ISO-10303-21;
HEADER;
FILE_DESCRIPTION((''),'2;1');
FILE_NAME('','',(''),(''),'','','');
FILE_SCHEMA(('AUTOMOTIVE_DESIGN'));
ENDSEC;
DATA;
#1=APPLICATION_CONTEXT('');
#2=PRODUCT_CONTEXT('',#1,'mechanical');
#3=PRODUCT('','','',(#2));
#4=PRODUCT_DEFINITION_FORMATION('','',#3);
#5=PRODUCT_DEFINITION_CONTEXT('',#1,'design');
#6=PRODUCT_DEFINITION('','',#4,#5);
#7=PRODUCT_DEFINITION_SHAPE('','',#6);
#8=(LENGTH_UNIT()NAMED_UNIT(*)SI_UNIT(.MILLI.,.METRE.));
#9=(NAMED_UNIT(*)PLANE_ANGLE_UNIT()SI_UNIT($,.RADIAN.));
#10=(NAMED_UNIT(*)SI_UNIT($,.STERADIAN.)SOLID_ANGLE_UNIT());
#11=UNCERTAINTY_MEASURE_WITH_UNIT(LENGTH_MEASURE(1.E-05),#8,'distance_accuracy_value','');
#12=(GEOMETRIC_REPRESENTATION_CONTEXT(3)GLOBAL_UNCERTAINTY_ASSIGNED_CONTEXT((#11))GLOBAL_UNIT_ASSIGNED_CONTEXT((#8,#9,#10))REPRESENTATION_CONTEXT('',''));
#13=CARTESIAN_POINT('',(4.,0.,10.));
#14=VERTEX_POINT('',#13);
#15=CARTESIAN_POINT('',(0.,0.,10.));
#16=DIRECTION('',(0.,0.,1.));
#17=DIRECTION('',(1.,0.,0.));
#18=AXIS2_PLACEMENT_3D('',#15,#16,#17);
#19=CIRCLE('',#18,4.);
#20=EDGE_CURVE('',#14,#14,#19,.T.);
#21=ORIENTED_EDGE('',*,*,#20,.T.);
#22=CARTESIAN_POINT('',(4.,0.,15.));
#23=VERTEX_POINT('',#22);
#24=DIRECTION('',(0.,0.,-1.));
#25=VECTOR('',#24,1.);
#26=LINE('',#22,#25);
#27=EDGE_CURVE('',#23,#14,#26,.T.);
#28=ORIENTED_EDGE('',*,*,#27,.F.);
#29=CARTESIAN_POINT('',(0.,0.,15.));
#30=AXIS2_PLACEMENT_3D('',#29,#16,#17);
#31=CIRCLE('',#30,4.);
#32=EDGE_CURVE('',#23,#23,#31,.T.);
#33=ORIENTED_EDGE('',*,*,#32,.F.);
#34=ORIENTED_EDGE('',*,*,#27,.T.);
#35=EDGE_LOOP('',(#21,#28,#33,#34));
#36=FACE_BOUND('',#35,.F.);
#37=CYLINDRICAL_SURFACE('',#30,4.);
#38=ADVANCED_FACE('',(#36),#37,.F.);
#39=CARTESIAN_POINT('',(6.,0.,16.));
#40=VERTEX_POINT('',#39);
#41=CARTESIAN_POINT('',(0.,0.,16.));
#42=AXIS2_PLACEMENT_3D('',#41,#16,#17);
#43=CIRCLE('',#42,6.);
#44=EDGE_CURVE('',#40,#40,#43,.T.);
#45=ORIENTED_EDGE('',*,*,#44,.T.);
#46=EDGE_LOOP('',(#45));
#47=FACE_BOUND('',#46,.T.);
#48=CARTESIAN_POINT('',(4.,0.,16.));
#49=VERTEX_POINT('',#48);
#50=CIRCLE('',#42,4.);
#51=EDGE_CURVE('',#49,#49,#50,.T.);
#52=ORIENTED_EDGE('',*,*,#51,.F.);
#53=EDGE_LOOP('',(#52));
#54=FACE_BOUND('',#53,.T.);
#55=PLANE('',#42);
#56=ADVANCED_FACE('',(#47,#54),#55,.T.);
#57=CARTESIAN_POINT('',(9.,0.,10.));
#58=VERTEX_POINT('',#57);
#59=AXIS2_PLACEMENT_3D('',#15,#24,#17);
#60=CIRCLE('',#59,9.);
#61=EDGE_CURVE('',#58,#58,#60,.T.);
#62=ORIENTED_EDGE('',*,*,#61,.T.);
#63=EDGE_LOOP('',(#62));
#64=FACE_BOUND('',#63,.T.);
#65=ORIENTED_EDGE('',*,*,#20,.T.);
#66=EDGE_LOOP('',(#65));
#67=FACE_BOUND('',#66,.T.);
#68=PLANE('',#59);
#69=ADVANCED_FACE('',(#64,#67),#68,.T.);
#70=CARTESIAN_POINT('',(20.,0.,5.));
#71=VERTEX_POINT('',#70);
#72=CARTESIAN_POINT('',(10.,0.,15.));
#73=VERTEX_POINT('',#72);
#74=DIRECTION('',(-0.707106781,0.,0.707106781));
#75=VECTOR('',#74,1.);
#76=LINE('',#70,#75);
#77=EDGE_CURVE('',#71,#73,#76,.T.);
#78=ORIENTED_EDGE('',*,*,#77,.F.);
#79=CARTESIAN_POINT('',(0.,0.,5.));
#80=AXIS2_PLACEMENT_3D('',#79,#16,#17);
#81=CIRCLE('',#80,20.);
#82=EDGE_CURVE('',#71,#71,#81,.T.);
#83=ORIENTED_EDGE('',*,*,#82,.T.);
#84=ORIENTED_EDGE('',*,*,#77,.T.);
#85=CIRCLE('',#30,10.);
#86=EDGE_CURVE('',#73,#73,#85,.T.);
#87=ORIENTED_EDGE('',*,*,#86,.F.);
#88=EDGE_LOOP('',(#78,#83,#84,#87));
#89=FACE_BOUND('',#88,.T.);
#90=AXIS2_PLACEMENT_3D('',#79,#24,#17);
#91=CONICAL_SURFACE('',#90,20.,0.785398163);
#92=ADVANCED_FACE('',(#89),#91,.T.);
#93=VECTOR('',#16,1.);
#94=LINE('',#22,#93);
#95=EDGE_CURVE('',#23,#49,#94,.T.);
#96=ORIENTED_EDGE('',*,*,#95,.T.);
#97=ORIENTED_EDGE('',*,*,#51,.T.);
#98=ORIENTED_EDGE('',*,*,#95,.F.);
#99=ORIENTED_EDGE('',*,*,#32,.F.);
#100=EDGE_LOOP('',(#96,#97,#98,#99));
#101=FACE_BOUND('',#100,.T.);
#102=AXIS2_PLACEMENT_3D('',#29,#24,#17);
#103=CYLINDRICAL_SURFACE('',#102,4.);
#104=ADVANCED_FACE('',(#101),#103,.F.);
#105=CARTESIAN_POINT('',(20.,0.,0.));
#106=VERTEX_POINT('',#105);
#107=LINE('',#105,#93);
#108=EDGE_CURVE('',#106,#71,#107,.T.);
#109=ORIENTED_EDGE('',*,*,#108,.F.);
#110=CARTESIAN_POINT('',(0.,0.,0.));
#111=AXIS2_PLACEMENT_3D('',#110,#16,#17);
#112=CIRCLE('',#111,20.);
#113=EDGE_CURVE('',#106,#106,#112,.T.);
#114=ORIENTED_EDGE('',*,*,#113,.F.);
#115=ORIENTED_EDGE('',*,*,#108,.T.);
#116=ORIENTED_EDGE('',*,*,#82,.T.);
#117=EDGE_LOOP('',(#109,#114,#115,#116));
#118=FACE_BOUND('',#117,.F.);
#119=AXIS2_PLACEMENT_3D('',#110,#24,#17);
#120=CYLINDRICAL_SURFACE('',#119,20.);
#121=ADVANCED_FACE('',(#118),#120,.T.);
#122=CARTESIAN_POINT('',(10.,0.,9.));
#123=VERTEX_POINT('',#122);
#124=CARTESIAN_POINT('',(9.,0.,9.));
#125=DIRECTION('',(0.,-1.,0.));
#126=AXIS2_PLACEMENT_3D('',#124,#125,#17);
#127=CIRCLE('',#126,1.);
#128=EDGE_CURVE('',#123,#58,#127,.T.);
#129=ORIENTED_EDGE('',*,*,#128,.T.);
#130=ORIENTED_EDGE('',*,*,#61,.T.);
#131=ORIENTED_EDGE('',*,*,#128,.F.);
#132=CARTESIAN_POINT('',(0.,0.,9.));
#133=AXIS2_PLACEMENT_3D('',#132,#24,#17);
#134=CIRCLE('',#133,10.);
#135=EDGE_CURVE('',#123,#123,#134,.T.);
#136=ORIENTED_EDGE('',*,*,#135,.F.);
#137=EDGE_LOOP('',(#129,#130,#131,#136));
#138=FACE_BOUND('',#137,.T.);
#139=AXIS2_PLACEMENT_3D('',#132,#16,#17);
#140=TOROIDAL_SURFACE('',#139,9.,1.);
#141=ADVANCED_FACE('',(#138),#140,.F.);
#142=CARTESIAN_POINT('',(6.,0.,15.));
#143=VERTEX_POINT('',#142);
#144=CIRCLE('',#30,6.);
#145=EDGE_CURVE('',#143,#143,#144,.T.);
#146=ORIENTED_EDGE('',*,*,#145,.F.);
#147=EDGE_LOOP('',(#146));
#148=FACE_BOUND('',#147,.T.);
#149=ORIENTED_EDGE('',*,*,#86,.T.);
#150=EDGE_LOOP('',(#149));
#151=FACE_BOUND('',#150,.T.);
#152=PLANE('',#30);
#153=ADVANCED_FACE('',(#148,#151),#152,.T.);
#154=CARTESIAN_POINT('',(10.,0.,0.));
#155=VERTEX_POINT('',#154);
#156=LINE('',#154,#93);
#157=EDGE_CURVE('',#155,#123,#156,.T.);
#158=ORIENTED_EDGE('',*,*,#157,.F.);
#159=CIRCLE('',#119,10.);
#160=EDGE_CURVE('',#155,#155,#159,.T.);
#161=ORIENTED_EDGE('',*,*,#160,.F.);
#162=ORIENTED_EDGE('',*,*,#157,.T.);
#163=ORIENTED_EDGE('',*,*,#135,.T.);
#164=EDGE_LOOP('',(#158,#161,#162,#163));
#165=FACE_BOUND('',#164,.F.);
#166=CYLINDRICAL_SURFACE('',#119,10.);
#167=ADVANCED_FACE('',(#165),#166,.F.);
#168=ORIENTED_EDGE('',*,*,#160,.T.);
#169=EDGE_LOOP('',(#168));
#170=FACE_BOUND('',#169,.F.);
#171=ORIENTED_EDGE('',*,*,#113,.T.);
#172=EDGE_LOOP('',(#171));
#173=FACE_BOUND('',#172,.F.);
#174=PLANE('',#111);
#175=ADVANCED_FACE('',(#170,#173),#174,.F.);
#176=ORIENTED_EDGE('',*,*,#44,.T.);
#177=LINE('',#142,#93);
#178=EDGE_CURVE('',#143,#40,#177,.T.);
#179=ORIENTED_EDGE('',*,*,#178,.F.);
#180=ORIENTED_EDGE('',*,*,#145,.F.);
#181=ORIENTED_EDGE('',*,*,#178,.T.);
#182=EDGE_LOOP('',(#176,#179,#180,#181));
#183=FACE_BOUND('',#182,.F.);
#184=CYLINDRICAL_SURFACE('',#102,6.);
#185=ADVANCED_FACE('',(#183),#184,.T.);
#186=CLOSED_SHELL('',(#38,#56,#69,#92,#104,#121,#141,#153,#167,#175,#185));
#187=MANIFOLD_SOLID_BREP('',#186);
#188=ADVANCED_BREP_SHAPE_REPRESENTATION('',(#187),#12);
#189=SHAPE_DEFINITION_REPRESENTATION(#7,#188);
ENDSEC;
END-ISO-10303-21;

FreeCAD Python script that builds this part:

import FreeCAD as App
import Part
import Sketcher
Q = App.Units.Quantity


def edges_at(feature, points):
    """Names of the edges that pass closest to the given points."""
    edges = feature.Shape.Edges
    near = lambda p: min(range(len(edges)), key=lambda i: edges[i].distToShape(Part.Vertex(*p))[0])
    return sorted({f"Edge{near(p) + 1}" for p in points})

doc = App.newDocument("Part")
body = doc.addObject("PartDesign::Body", "Body")

sketch1 = body.newObject("Sketcher::SketchObject", "Sketch")
sketch1.AttachmentSupport = (doc.getObject("XY_Plane"), [""])
sketch1.MapMode = "FlatFace"
sketch1.addGeometry(Part.Circle(App.Vector(0, 0, 0), App.Vector(0, 0, 1), 20), False)
sketch1.addConstraint(Sketcher.Constraint("Coincident", 0, 3, -1, 1))
sketch1.addConstraint(Sketcher.Constraint("Diameter", 0, Q("40 mm")))
pad1 = body.newObject("PartDesign::Pad", "Pad")
pad1.Profile = sketch1
pad1.Length = 15
doc.recompute()

chamfer = body.newObject("PartDesign::Chamfer", "Chamfer")
chamfer.Base = (pad1, edges_at(pad1, [(-20, 0, 15)]))
chamfer.Size = 10

sketch2 = body.newObject("Sketcher::SketchObject", "Sketch001")
sketch2.AttachmentSupport = (doc.getObject("XY_Plane"), [""])
sketch2.MapMode = "FlatFace"
sketch2.AttachmentOffset = App.Placement(App.Vector(0, 0, 15), App.Rotation())
sketch2.addGeometry(Part.Circle(App.Vector(0, 0, 0), App.Vector(0, 0, 1), 6), False)
sketch2.addGeometry(Part.Circle(App.Vector(0, 0, 0), App.Vector(0, 0, 1), 4), False)
sketch2.addConstraint(Sketcher.Constraint("Coincident", 0, 3, -1, 1))
sketch2.addConstraint(Sketcher.Constraint("Coincident", 1, 3, -1, 1))
sketch2.addConstraint(Sketcher.Constraint("Diameter", 0, Q("12 mm")))
sketch2.addConstraint(Sketcher.Constraint("Diameter", 1, Q("8 mm")))
pad2 = body.newObject("PartDesign::Pad", "Pad001")
pad2.Profile = sketch2
pad2.Length = 1

sketch3 = body.newObject("Sketcher::SketchObject", "Sketch002")
sketch3.AttachmentSupport = (doc.getObject("XY_Plane"), [""])
sketch3.MapMode = "FlatFace"
sketch3.AttachmentOffset = App.Placement(App.Vector(0, 0, 15), App.Rotation())
sketch3.addGeometry(Part.Circle(App.Vector(0, 0, 0), App.Vector(0, 0, 1), 4), False)
sketch3.addConstraint(Sketcher.Constraint("Coincident", 0, 3, -1, 1))
sketch3.addConstraint(Sketcher.Constraint("Diameter", 0, Q("8 mm")))
pocket1 = body.newObject("PartDesign::Pocket", "Pocket")
pocket1.Profile = sketch3
pocket1.Type = "ThroughAll"

sketch4 = body.newObject("Sketcher::SketchObject", "Sketch003")
sketch4.AttachmentSupport = (doc.getObject("XY_Plane"), [""])
sketch4.MapMode = "FlatFace"
sketch4.addGeometry(Part.Circle(App.Vector(0, 0, 0), App.Vector(0, 0, 1), 10), False)
sketch4.addConstraint(Sketcher.Constraint("Coincident", 0, 3, -1, 1))
sketch4.addConstraint(Sketcher.Constraint("Diameter", 0, Q("20 mm")))
pocket2 = body.newObject("PartDesign::Pocket", "Pocket001")
pocket2.Profile = sketch4
pocket2.Length = 10
pocket2.Reversed = True
doc.recompute()

fillet = body.newObject("PartDesign::Fillet", "Fillet")
fillet.Base = (pocket2, edges_at(pocket2, [(-10, 0, 10)]))
fillet.Radius = 1

doc.recompute()
